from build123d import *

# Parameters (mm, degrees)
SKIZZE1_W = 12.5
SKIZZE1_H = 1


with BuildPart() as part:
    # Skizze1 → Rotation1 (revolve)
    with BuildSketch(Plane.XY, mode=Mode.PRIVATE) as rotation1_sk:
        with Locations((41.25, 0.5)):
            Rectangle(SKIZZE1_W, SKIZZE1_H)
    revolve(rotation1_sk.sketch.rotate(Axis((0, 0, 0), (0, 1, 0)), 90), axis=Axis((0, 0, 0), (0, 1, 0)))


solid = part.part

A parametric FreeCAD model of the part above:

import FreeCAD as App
import Part
import Sketcher
from FreeCAD import Vector
Q = App.Units.Quantity


def add_polygon(sketch, points):
    """Adds a closed chain of lines whose ends are joined by coincident constraints."""
    first, n = sketch.GeometryCount, len(points)
    for a, b in zip(points, points[1:] + points[:1]):
        sketch.addGeometry(Part.LineSegment(App.Vector(*a, 0), App.Vector(*b, 0)), False)
    for i in range(n):
        sketch.addConstraint(Sketcher.Constraint("Coincident", first + i, 2, first + (i + 1) % n, 1))

doc = App.newDocument("Part")
body = doc.addObject("PartDesign::Body", "Body")

# Sketch on XY plane
sketch1 = body.newObject("Sketcher::SketchObject", "Sketch")
sketch1.AttachmentSupport = (doc.getObject("XY_Plane"), [""])
sketch1.MapMode = "FlatFace"
add_polygon(sketch1, [(35, 1), (35, 0), (47.5, 0), (47.5, 1)])  # lines 0-3
sketch1.addConstraint([
    Sketcher.Constraint("Vertical", 0),
    Sketcher.Constraint("Horizontal", 1),
    Sketcher.Constraint("Vertical", 2),
    Sketcher.Constraint("Horizontal", 3),
    Sketcher.Constraint("PointOnObject", 0, 2, -1),
    Sketcher.Constraint("DistanceY", 0, 2, 0, 1, Q("1 mm")),
    Sketcher.Constraint("DistanceX", 1, 1, 1, 2, Q("12.5 mm")),
    Sketcher.Constraint("DistanceX", -1, 1, 0, 2, Q("35 mm")),
])
revolution = body.newObject("PartDesign::Revolution", "Revolution")
revolution.Profile = sketch1
revolution.ReferenceAxis = (sketch1, ["V_Axis"])
revolution.Angle = 360

doc.recompute()
